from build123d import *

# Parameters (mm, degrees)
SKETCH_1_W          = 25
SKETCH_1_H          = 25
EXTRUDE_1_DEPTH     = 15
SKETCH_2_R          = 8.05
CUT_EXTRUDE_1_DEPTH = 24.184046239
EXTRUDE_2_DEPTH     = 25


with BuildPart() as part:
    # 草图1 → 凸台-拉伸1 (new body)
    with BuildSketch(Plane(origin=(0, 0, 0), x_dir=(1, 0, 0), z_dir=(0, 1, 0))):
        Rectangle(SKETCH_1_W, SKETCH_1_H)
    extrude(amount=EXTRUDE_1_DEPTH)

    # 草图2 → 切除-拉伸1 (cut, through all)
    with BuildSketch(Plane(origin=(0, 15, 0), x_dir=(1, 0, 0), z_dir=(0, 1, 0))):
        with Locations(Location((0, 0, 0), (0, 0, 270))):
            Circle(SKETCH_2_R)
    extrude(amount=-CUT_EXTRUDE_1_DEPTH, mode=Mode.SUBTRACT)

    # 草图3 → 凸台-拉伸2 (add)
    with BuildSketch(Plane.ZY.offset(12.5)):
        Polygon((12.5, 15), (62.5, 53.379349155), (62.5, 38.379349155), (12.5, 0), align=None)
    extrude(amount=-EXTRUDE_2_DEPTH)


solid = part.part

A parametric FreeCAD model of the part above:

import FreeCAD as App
import Part
import Sketcher

V = App.Vector
Q = App.Units.Quantity


def add_polygon(sketch, points):
    """Adds a closed chain of lines whose ends are joined by coincident constraints."""
    first, n = sketch.GeometryCount, len(points)
    for a, b in zip(points, points[1:] + points[:1]):
        sketch.addGeometry(Part.LineSegment(App.Vector(*a, 0), App.Vector(*b, 0)), False)
    for i in range(n):
        sketch.addConstraint(Sketcher.Constraint("Coincident", first + i, 2, first + (i + 1) % n, 1))

doc = App.newDocument("Part")
body = doc.addObject("PartDesign::Body", "Body")

sketch1 = doc.addObject("Sketcher::SketchObject", "Sketch")
body.addObject(sketch1)
sketch1.AttachmentSupport = (doc.XZ_Plane, [""])
sketch1.MapMode = "FlatFace"
add_polygon(sketch1, [(-12.5, -12.5), (-12.5, 12.5), (12.5, 12.5), (12.5, -12.5)])
sketch1.addConstraint(Sketcher.Constraint("Vertical", 0))
sketch1.addConstraint(Sketcher.Constraint("Horizontal", 1))
sketch1.addConstraint(Sketcher.Constraint("Vertical", 2))
sketch1.addConstraint(Sketcher.Constraint("Horizontal", 3))
sketch1.addConstraint(Sketcher.Constraint("Symmetric", 0, 2, 2, 2, -1, 1))
sketch1.addConstraint(Sketcher.Constraint("Equal", 3, 0))
sketch1.addConstraint(Sketcher.Constraint("DistanceX", 1, 1, 1, 2, Q("25 mm")))
pad1 = doc.addObject("PartDesign::Pad", "Pad")
body.addObject(pad1)
pad1.Profile = sketch1
pad1.Length = 15
pad1.Reversed = True

sketch2 = doc.addObject("Sketcher::SketchObject", "Sketch001")
body.addObject(sketch2)
sketch2.AttachmentSupport = (doc.XZ_Plane, [""])
sketch2.MapMode = "FlatFace"
sketch2.AttachmentOffset = App.Placement(V(0, 0, -15), App.Rotation())
sketch2.addGeometry(Part.Circle(V(0, 0, 0), V(0, 0, 1), 8.05), False)
sketch2.addConstraint(Sketcher.Constraint("Coincident", 0, 3, -1, 1))
sketch2.addConstraint(Sketcher.Constraint("Diameter", 0, Q("16.1 mm")))
pocket1 = doc.addObject("PartDesign::Pocket", "Pocket")
body.addObject(pocket1)
pocket1.Profile = sketch2
pocket1.Type = "ThroughAll"
pocket1.Reversed = True

sketch3 = doc.addObject("Sketcher::SketchObject", "Sketch002")
body.addObject(sketch3)
sketch3.AttachmentSupport = (doc.YZ_Plane, [""])
sketch3.MapMode = "FlatFace"
sketch3.AttachmentOffset = App.Placement(V(0, 0, -12.5), App.Rotation())
add_polygon(sketch3, [(53.379349, 62.5), (15, 12.5), (0, 12.5), (38.379349, 62.5)])
sketch3.addConstraint(Sketcher.Constraint("Horizontal", 1))
sketch3.addConstraint(Sketcher.Constraint("Horizontal", 3))
sketch3.addConstraint(Sketcher.Constraint("PointOnObject", 1, 2, -2))
sketch3.addConstraint(Sketcher.Constraint("Parallel", 0, 2))
sketch3.addConstraint(Sketcher.Constraint("DistanceX", 1, 2, 1, 1, Q("15 mm")))
sketch3.addConstraint(Sketcher.Constraint("DistanceY", 0, 2, 2, 2, Q("50 mm")))
sketch3.addConstraint(Sketcher.Constraint("DistanceY", -1, 1, 0, 2, Q("12.5 mm")))
sketch3.addConstraint(Sketcher.Constraint("DistanceX", -1, 1, 2, 2, Q("38.379349 mm")))
pad2 = doc.addObject("PartDesign::Pad", "Pad001")
body.addObject(pad2)
pad2.Profile = sketch3
pad2.Length = 25

doc.recompute()
